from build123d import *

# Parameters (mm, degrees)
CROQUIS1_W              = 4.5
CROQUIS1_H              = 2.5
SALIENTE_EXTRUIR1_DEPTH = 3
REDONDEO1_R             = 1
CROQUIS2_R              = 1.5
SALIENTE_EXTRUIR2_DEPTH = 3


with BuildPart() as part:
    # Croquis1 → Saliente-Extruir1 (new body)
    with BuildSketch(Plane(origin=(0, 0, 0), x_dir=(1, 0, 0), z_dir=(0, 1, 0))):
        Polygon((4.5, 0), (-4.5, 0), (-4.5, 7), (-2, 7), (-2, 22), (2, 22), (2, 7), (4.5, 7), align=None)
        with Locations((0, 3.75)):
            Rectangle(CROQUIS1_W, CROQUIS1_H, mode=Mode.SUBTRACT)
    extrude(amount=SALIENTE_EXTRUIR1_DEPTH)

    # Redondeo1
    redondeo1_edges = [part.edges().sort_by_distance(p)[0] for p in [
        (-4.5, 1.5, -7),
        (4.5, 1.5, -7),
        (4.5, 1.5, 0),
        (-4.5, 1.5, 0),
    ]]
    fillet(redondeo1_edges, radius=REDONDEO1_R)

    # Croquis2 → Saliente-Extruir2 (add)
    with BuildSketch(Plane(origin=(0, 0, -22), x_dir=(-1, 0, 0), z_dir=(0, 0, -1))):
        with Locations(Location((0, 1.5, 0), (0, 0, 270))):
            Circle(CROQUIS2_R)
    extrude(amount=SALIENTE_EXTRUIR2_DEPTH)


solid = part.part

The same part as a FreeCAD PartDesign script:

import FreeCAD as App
import Part
import Sketcher
Q = App.Units.Quantity


def edges_at(feature, points):
    """Names of the edges that pass closest to the given points."""
    edges = feature.Shape.Edges
    near = lambda p: min(range(len(edges)), key=lambda i: edges[i].distToShape(Part.Vertex(*p))[0])
    return sorted({f"Edge{near(p) + 1}" for p in points})


def add_polygon(sketch, points):
    """Adds a closed chain of lines whose ends are joined by coincident constraints."""
    first, n = sketch.GeometryCount, len(points)
    for a, b in zip(points, points[1:] + points[:1]):
        sketch.addGeometry(Part.LineSegment(App.Vector(*a, 0), App.Vector(*b, 0)), False)
    for i in range(n):
        sketch.addConstraint(Sketcher.Constraint("Coincident", first + i, 2, first + (i + 1) % n, 1))

doc = App.newDocument("Part")
body = doc.addObject("PartDesign::Body", "Body")

# Sketch on XZ plane
sketch1 = body.newObject("Sketcher::SketchObject", "Sketch")
sketch1.AttachmentSupport = (doc.getObject("XZ_Plane"), [""])
sketch1.MapMode = "FlatFace"
add_polygon(sketch1, [(-4.5, 0), (4.5, 0), (4.5, -7), (2, -7), (2, -22), (-2, -22), (-2, -7), (-4.5, -7)])  # lines 0-7
add_polygon(sketch1, [(-2.2, -2.5), (-2.2, -5), (2.2, -5), (2.2, -2.5)])  # lines 8-11
sketch1.addConstraint([
    Sketcher.Constraint("Horizontal", 0),
    Sketcher.Constraint("Vertical", 1),
    Sketcher.Constraint("Horizontal", 2),
    Sketcher.Constraint("Vertical", 3),
    Sketcher.Constraint("Horizontal", 4),
    Sketcher.Constraint("Vertical", 5),
    Sketcher.Constraint("Horizontal", 6),
    Sketcher.Constraint("Vertical", 7),
    Sketcher.Constraint("Vertical", 8),
    Sketcher.Constraint("Horizontal", 9),
    Sketcher.Constraint("Vertical", 10),
    Sketcher.Constraint("Horizontal", 11),
    Sketcher.Constraint("Symmetric", 0, 2, 7, 2, -1, 1),
    Sketcher.Constraint("Symmetric", 2, 2, 5, 2, -2),
    Sketcher.Constraint("Equal", 6, 8),
    Sketcher.Constraint("DistanceX", 0, 1, 0, 2, Q("9 mm")),
    Sketcher.Constraint("DistanceX", 4, 2, 4, 1, Q("4 mm")),
    Sketcher.Constraint("DistanceY", 1, 2, 1, 1, Q("7 mm")),
    Sketcher.Constraint("DistanceY", 3, 2, 3, 1, Q("15 mm")),
    Sketcher.Constraint("DistanceX", 9, 1, 9, 2, Q("4.5 mm")),
    Sketcher.Constraint("DistanceY", 8, 2, -1, 1, Q("5 mm")),
    Sketcher.Constraint("DistanceX", 8, 2, -1, 1, Q("2.25 mm")),
])
pad1 = body.newObject("PartDesign::Pad", "Pad")
pad1.Profile = sketch1
pad1.Length = 3
pad1.Reversed = True
doc.recompute()

fillet = body.newObject("PartDesign::Fillet", "Fillet")
fillet.Base = (pad1, edges_at(pad1, [
    (-4.5, 1.5, -7),
    (4.5, 1.5, -7),
    (4.5, 1.5, 0),
    (-4.5, 1.5, 0),
]))
fillet.Radius = 1

# Sketch on XY plane
sketch2 = body.newObject("Sketcher::SketchObject", "Sketch001")
sketch2.AttachmentSupport = (doc.getObject("XY_Plane"), [""])
sketch2.MapMode = "FlatFace"
sketch2.AttachmentOffset = App.Placement(App.Vector(0, 0, -22), App.Rotation())
sketch2.addGeometry(Part.Circle(App.Vector(0, 1.5, 0), App.Vector(0, 0, 1), 1.5), False)
sketch2.addConstraint([
    Sketcher.Constraint("PointOnObject", 0, 3, -2),
    Sketcher.Constraint("Diameter", 0, Q("3 mm")),
    Sketcher.Constraint("DistanceY", -1, 1, 0, 3, Q("1.5 mm")),
])
pad2 = body.newObject("PartDesign::Pad", "Pad001")
pad2.Profile = sketch2
pad2.Length = 3
pad2.Reversed = True

doc.recompute()
